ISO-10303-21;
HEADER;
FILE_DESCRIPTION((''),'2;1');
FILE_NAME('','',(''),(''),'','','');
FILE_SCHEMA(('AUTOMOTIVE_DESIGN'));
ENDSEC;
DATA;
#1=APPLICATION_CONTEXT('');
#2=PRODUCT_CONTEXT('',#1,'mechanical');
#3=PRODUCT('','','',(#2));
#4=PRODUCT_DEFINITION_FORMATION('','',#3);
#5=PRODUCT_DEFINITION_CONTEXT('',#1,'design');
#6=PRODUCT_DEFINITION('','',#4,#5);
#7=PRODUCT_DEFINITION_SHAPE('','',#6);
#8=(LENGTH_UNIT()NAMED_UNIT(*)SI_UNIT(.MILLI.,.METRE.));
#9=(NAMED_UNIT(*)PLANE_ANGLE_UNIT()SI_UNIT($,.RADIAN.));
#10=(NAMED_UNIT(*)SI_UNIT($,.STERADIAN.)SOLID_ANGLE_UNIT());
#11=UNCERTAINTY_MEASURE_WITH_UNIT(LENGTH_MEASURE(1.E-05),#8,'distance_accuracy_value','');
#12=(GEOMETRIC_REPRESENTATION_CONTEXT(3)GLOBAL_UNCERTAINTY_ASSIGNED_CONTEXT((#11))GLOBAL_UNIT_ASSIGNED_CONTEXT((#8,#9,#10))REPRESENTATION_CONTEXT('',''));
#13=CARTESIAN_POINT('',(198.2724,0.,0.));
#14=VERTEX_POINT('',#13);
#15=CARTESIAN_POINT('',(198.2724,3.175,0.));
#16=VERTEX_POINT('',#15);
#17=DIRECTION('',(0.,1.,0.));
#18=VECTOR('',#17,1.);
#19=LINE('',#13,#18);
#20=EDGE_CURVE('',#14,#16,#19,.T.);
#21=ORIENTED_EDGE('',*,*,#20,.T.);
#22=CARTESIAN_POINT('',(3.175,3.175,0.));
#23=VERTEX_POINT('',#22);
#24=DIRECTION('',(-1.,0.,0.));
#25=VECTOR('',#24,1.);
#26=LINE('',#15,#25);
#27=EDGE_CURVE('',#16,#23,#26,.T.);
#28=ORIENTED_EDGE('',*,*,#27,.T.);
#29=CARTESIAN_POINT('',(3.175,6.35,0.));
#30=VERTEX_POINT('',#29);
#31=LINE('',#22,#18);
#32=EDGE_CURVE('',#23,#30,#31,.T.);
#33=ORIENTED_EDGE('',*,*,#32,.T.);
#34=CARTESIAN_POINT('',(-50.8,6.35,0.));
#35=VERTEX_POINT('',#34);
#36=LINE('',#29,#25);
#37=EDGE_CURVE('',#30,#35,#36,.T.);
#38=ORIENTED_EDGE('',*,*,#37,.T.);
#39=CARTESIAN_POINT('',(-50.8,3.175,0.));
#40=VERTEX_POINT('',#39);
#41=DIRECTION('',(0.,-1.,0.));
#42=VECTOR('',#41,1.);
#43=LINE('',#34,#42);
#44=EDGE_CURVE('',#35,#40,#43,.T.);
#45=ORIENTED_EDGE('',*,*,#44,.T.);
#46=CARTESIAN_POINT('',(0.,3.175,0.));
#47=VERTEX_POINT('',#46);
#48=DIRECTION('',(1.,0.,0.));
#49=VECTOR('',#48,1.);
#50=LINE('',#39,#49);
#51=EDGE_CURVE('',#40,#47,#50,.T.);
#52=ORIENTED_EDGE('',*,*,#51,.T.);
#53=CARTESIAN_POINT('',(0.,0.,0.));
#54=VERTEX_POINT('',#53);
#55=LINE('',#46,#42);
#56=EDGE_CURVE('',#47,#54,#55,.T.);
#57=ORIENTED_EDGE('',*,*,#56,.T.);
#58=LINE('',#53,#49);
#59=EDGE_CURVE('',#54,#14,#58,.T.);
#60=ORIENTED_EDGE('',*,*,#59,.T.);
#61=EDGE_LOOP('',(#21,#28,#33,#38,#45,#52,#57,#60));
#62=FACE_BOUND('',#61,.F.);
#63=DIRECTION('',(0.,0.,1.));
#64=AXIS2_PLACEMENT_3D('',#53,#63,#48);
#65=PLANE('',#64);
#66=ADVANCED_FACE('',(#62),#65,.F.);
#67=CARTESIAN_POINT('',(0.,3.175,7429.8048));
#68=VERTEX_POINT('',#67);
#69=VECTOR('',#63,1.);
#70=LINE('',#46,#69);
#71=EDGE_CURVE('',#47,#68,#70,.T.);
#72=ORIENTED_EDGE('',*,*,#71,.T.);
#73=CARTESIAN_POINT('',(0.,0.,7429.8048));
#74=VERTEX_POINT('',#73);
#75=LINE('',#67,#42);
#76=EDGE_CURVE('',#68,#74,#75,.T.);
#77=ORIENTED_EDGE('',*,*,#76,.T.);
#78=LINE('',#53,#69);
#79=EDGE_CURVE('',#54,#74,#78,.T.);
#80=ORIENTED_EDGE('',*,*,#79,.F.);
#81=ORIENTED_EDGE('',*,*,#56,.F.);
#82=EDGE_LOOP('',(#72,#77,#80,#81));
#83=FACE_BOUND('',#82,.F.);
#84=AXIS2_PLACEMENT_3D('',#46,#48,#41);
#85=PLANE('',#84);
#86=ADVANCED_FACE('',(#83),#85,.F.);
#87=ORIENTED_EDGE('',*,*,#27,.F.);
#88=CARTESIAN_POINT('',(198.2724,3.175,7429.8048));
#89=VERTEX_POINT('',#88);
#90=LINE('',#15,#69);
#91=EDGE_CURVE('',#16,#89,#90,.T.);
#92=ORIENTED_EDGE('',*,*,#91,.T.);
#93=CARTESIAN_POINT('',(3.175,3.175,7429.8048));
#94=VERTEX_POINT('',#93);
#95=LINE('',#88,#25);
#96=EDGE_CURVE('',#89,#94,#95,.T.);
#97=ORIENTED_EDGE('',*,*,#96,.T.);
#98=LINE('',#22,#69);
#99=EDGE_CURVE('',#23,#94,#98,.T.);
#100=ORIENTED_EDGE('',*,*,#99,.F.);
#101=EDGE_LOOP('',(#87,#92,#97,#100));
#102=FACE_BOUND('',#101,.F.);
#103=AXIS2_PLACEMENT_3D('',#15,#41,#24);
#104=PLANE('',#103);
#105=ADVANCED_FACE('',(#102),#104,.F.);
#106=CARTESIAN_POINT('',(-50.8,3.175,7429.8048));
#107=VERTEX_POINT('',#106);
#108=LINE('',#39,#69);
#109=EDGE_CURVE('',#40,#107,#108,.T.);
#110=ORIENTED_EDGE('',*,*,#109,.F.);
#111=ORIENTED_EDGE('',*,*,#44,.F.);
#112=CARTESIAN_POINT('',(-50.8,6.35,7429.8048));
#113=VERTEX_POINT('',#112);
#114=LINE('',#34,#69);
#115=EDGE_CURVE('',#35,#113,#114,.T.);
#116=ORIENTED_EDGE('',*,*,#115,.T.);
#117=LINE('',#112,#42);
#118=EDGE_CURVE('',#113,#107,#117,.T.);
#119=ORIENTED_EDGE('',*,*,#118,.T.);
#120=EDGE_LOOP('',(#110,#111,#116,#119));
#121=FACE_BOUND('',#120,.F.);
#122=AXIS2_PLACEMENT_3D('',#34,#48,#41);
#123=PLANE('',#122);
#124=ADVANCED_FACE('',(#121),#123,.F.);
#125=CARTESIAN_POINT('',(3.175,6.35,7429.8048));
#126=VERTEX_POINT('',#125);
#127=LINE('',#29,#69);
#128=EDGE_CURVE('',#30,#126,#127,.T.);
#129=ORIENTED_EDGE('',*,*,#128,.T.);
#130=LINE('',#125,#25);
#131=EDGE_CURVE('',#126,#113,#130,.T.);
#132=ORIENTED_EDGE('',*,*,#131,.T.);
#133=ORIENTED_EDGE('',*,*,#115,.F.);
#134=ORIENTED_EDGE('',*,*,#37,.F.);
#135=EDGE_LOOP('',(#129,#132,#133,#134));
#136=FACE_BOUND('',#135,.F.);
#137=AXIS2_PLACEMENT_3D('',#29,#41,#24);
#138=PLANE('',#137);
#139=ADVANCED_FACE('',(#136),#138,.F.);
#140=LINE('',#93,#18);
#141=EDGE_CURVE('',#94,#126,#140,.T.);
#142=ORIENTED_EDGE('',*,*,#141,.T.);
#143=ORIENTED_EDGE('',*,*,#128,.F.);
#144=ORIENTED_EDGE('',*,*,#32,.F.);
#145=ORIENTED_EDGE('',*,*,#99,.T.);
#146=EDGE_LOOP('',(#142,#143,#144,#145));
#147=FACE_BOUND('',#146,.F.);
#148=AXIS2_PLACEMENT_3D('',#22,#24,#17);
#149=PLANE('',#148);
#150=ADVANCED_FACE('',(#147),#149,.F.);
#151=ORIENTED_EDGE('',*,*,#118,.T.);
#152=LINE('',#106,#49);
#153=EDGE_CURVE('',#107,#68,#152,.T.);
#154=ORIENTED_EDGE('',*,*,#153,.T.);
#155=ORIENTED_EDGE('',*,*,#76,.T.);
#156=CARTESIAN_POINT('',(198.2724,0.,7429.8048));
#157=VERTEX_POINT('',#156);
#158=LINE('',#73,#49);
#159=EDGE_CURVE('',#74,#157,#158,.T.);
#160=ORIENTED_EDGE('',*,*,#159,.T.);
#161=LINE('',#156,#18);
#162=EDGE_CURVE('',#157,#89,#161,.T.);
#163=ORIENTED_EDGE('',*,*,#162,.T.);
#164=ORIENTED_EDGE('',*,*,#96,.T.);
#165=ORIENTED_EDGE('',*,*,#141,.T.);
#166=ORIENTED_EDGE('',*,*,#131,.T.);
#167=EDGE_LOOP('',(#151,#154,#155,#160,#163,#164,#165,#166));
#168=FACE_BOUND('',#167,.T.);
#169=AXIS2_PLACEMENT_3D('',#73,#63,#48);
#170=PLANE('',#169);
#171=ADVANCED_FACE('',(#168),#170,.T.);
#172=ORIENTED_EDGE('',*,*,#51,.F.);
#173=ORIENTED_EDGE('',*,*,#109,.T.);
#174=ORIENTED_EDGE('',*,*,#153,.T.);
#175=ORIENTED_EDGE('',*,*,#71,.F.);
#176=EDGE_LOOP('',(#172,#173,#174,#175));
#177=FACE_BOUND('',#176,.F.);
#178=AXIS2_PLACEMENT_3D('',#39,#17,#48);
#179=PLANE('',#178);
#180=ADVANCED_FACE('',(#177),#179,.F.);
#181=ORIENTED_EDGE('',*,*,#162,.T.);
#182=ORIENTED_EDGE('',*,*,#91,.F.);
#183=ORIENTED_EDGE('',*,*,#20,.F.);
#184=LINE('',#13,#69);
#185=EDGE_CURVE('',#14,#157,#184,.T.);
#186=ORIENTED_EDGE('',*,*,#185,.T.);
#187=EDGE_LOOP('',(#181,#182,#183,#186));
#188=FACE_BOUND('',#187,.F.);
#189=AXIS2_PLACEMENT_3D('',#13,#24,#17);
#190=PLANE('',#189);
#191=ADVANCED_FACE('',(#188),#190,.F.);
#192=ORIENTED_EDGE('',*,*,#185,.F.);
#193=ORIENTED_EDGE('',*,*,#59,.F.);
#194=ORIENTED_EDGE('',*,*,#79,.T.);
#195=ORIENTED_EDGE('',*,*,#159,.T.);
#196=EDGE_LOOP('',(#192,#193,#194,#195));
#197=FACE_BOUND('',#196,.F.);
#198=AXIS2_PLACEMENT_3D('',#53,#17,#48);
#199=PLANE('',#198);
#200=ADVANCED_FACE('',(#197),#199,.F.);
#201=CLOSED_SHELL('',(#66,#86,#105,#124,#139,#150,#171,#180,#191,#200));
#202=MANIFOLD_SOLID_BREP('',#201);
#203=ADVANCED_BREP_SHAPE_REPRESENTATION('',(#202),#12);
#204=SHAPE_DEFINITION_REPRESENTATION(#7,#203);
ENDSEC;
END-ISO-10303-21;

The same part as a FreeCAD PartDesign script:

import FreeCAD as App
import Part
import Sketcher

V = App.Vector
Q = App.Units.Quantity


def add_polygon(sketch, points):
    """Adds a closed chain of lines whose ends are joined by coincident constraints."""
    first, n = sketch.GeometryCount, len(points)
    for a, b in zip(points, points[1:] + points[:1]):
        sketch.addGeometry(Part.LineSegment(App.Vector(*a, 0), App.Vector(*b, 0)), False)
    for i in range(n):
        sketch.addConstraint(Sketcher.Constraint("Coincident", first + i, 2, first + (i + 1) % n, 1))

doc = App.newDocument("Part")
body = doc.addObject("PartDesign::Body", "Body")

sketch1 = doc.addObject("Sketcher::SketchObject", "Sketch")
body.addObject(sketch1)
sketch1.AttachmentSupport = (doc.XY_Plane, [""])
sketch1.MapMode = "FlatFace"
add_polygon(sketch1, [(0, 3.2), (0, 0), (198.3, 0), (198.3, 3.2), (3.2, 3.2), (3.2, 6.3), (-50.8, 6.3), (-50.8, 3.2)])
sketch1.addConstraint([
    Sketcher.Constraint("Vertical", 0),
    Sketcher.Constraint("Horizontal", 1),
    Sketcher.Constraint("Vertical", 2),
    Sketcher.Constraint("Horizontal", 3),
    Sketcher.Constraint("Vertical", 4),
    Sketcher.Constraint("Horizontal", 5),
    Sketcher.Constraint("Vertical", 6),
    Sketcher.Constraint("Horizontal", 7),
    Sketcher.Constraint("Coincident", 0, 2, -1, 1),
    Sketcher.Constraint("Horizontal", 3, 2, 6, 2),
    Sketcher.Constraint("Equal", 2, 4),
    Sketcher.Constraint("DistanceX", 7, 1, 7, 2, Q("2 in")),
    Sketcher.Constraint("DistanceX", 1, 1, 1, 2, Q("7.806 in")),
    Sketcher.Constraint("DistanceY", 0, 2, 0, 1, Q("0.125 in")),
    Sketcher.Constraint("DistanceX", -1, 1, 3, 2, Q("0.125 in")),
])
pad1 = doc.addObject("PartDesign::Pad", "Pad")
body.addObject(pad1)
pad1.Profile = sketch1
pad1.Length = Q("292.512 in")

doc.recompute()
